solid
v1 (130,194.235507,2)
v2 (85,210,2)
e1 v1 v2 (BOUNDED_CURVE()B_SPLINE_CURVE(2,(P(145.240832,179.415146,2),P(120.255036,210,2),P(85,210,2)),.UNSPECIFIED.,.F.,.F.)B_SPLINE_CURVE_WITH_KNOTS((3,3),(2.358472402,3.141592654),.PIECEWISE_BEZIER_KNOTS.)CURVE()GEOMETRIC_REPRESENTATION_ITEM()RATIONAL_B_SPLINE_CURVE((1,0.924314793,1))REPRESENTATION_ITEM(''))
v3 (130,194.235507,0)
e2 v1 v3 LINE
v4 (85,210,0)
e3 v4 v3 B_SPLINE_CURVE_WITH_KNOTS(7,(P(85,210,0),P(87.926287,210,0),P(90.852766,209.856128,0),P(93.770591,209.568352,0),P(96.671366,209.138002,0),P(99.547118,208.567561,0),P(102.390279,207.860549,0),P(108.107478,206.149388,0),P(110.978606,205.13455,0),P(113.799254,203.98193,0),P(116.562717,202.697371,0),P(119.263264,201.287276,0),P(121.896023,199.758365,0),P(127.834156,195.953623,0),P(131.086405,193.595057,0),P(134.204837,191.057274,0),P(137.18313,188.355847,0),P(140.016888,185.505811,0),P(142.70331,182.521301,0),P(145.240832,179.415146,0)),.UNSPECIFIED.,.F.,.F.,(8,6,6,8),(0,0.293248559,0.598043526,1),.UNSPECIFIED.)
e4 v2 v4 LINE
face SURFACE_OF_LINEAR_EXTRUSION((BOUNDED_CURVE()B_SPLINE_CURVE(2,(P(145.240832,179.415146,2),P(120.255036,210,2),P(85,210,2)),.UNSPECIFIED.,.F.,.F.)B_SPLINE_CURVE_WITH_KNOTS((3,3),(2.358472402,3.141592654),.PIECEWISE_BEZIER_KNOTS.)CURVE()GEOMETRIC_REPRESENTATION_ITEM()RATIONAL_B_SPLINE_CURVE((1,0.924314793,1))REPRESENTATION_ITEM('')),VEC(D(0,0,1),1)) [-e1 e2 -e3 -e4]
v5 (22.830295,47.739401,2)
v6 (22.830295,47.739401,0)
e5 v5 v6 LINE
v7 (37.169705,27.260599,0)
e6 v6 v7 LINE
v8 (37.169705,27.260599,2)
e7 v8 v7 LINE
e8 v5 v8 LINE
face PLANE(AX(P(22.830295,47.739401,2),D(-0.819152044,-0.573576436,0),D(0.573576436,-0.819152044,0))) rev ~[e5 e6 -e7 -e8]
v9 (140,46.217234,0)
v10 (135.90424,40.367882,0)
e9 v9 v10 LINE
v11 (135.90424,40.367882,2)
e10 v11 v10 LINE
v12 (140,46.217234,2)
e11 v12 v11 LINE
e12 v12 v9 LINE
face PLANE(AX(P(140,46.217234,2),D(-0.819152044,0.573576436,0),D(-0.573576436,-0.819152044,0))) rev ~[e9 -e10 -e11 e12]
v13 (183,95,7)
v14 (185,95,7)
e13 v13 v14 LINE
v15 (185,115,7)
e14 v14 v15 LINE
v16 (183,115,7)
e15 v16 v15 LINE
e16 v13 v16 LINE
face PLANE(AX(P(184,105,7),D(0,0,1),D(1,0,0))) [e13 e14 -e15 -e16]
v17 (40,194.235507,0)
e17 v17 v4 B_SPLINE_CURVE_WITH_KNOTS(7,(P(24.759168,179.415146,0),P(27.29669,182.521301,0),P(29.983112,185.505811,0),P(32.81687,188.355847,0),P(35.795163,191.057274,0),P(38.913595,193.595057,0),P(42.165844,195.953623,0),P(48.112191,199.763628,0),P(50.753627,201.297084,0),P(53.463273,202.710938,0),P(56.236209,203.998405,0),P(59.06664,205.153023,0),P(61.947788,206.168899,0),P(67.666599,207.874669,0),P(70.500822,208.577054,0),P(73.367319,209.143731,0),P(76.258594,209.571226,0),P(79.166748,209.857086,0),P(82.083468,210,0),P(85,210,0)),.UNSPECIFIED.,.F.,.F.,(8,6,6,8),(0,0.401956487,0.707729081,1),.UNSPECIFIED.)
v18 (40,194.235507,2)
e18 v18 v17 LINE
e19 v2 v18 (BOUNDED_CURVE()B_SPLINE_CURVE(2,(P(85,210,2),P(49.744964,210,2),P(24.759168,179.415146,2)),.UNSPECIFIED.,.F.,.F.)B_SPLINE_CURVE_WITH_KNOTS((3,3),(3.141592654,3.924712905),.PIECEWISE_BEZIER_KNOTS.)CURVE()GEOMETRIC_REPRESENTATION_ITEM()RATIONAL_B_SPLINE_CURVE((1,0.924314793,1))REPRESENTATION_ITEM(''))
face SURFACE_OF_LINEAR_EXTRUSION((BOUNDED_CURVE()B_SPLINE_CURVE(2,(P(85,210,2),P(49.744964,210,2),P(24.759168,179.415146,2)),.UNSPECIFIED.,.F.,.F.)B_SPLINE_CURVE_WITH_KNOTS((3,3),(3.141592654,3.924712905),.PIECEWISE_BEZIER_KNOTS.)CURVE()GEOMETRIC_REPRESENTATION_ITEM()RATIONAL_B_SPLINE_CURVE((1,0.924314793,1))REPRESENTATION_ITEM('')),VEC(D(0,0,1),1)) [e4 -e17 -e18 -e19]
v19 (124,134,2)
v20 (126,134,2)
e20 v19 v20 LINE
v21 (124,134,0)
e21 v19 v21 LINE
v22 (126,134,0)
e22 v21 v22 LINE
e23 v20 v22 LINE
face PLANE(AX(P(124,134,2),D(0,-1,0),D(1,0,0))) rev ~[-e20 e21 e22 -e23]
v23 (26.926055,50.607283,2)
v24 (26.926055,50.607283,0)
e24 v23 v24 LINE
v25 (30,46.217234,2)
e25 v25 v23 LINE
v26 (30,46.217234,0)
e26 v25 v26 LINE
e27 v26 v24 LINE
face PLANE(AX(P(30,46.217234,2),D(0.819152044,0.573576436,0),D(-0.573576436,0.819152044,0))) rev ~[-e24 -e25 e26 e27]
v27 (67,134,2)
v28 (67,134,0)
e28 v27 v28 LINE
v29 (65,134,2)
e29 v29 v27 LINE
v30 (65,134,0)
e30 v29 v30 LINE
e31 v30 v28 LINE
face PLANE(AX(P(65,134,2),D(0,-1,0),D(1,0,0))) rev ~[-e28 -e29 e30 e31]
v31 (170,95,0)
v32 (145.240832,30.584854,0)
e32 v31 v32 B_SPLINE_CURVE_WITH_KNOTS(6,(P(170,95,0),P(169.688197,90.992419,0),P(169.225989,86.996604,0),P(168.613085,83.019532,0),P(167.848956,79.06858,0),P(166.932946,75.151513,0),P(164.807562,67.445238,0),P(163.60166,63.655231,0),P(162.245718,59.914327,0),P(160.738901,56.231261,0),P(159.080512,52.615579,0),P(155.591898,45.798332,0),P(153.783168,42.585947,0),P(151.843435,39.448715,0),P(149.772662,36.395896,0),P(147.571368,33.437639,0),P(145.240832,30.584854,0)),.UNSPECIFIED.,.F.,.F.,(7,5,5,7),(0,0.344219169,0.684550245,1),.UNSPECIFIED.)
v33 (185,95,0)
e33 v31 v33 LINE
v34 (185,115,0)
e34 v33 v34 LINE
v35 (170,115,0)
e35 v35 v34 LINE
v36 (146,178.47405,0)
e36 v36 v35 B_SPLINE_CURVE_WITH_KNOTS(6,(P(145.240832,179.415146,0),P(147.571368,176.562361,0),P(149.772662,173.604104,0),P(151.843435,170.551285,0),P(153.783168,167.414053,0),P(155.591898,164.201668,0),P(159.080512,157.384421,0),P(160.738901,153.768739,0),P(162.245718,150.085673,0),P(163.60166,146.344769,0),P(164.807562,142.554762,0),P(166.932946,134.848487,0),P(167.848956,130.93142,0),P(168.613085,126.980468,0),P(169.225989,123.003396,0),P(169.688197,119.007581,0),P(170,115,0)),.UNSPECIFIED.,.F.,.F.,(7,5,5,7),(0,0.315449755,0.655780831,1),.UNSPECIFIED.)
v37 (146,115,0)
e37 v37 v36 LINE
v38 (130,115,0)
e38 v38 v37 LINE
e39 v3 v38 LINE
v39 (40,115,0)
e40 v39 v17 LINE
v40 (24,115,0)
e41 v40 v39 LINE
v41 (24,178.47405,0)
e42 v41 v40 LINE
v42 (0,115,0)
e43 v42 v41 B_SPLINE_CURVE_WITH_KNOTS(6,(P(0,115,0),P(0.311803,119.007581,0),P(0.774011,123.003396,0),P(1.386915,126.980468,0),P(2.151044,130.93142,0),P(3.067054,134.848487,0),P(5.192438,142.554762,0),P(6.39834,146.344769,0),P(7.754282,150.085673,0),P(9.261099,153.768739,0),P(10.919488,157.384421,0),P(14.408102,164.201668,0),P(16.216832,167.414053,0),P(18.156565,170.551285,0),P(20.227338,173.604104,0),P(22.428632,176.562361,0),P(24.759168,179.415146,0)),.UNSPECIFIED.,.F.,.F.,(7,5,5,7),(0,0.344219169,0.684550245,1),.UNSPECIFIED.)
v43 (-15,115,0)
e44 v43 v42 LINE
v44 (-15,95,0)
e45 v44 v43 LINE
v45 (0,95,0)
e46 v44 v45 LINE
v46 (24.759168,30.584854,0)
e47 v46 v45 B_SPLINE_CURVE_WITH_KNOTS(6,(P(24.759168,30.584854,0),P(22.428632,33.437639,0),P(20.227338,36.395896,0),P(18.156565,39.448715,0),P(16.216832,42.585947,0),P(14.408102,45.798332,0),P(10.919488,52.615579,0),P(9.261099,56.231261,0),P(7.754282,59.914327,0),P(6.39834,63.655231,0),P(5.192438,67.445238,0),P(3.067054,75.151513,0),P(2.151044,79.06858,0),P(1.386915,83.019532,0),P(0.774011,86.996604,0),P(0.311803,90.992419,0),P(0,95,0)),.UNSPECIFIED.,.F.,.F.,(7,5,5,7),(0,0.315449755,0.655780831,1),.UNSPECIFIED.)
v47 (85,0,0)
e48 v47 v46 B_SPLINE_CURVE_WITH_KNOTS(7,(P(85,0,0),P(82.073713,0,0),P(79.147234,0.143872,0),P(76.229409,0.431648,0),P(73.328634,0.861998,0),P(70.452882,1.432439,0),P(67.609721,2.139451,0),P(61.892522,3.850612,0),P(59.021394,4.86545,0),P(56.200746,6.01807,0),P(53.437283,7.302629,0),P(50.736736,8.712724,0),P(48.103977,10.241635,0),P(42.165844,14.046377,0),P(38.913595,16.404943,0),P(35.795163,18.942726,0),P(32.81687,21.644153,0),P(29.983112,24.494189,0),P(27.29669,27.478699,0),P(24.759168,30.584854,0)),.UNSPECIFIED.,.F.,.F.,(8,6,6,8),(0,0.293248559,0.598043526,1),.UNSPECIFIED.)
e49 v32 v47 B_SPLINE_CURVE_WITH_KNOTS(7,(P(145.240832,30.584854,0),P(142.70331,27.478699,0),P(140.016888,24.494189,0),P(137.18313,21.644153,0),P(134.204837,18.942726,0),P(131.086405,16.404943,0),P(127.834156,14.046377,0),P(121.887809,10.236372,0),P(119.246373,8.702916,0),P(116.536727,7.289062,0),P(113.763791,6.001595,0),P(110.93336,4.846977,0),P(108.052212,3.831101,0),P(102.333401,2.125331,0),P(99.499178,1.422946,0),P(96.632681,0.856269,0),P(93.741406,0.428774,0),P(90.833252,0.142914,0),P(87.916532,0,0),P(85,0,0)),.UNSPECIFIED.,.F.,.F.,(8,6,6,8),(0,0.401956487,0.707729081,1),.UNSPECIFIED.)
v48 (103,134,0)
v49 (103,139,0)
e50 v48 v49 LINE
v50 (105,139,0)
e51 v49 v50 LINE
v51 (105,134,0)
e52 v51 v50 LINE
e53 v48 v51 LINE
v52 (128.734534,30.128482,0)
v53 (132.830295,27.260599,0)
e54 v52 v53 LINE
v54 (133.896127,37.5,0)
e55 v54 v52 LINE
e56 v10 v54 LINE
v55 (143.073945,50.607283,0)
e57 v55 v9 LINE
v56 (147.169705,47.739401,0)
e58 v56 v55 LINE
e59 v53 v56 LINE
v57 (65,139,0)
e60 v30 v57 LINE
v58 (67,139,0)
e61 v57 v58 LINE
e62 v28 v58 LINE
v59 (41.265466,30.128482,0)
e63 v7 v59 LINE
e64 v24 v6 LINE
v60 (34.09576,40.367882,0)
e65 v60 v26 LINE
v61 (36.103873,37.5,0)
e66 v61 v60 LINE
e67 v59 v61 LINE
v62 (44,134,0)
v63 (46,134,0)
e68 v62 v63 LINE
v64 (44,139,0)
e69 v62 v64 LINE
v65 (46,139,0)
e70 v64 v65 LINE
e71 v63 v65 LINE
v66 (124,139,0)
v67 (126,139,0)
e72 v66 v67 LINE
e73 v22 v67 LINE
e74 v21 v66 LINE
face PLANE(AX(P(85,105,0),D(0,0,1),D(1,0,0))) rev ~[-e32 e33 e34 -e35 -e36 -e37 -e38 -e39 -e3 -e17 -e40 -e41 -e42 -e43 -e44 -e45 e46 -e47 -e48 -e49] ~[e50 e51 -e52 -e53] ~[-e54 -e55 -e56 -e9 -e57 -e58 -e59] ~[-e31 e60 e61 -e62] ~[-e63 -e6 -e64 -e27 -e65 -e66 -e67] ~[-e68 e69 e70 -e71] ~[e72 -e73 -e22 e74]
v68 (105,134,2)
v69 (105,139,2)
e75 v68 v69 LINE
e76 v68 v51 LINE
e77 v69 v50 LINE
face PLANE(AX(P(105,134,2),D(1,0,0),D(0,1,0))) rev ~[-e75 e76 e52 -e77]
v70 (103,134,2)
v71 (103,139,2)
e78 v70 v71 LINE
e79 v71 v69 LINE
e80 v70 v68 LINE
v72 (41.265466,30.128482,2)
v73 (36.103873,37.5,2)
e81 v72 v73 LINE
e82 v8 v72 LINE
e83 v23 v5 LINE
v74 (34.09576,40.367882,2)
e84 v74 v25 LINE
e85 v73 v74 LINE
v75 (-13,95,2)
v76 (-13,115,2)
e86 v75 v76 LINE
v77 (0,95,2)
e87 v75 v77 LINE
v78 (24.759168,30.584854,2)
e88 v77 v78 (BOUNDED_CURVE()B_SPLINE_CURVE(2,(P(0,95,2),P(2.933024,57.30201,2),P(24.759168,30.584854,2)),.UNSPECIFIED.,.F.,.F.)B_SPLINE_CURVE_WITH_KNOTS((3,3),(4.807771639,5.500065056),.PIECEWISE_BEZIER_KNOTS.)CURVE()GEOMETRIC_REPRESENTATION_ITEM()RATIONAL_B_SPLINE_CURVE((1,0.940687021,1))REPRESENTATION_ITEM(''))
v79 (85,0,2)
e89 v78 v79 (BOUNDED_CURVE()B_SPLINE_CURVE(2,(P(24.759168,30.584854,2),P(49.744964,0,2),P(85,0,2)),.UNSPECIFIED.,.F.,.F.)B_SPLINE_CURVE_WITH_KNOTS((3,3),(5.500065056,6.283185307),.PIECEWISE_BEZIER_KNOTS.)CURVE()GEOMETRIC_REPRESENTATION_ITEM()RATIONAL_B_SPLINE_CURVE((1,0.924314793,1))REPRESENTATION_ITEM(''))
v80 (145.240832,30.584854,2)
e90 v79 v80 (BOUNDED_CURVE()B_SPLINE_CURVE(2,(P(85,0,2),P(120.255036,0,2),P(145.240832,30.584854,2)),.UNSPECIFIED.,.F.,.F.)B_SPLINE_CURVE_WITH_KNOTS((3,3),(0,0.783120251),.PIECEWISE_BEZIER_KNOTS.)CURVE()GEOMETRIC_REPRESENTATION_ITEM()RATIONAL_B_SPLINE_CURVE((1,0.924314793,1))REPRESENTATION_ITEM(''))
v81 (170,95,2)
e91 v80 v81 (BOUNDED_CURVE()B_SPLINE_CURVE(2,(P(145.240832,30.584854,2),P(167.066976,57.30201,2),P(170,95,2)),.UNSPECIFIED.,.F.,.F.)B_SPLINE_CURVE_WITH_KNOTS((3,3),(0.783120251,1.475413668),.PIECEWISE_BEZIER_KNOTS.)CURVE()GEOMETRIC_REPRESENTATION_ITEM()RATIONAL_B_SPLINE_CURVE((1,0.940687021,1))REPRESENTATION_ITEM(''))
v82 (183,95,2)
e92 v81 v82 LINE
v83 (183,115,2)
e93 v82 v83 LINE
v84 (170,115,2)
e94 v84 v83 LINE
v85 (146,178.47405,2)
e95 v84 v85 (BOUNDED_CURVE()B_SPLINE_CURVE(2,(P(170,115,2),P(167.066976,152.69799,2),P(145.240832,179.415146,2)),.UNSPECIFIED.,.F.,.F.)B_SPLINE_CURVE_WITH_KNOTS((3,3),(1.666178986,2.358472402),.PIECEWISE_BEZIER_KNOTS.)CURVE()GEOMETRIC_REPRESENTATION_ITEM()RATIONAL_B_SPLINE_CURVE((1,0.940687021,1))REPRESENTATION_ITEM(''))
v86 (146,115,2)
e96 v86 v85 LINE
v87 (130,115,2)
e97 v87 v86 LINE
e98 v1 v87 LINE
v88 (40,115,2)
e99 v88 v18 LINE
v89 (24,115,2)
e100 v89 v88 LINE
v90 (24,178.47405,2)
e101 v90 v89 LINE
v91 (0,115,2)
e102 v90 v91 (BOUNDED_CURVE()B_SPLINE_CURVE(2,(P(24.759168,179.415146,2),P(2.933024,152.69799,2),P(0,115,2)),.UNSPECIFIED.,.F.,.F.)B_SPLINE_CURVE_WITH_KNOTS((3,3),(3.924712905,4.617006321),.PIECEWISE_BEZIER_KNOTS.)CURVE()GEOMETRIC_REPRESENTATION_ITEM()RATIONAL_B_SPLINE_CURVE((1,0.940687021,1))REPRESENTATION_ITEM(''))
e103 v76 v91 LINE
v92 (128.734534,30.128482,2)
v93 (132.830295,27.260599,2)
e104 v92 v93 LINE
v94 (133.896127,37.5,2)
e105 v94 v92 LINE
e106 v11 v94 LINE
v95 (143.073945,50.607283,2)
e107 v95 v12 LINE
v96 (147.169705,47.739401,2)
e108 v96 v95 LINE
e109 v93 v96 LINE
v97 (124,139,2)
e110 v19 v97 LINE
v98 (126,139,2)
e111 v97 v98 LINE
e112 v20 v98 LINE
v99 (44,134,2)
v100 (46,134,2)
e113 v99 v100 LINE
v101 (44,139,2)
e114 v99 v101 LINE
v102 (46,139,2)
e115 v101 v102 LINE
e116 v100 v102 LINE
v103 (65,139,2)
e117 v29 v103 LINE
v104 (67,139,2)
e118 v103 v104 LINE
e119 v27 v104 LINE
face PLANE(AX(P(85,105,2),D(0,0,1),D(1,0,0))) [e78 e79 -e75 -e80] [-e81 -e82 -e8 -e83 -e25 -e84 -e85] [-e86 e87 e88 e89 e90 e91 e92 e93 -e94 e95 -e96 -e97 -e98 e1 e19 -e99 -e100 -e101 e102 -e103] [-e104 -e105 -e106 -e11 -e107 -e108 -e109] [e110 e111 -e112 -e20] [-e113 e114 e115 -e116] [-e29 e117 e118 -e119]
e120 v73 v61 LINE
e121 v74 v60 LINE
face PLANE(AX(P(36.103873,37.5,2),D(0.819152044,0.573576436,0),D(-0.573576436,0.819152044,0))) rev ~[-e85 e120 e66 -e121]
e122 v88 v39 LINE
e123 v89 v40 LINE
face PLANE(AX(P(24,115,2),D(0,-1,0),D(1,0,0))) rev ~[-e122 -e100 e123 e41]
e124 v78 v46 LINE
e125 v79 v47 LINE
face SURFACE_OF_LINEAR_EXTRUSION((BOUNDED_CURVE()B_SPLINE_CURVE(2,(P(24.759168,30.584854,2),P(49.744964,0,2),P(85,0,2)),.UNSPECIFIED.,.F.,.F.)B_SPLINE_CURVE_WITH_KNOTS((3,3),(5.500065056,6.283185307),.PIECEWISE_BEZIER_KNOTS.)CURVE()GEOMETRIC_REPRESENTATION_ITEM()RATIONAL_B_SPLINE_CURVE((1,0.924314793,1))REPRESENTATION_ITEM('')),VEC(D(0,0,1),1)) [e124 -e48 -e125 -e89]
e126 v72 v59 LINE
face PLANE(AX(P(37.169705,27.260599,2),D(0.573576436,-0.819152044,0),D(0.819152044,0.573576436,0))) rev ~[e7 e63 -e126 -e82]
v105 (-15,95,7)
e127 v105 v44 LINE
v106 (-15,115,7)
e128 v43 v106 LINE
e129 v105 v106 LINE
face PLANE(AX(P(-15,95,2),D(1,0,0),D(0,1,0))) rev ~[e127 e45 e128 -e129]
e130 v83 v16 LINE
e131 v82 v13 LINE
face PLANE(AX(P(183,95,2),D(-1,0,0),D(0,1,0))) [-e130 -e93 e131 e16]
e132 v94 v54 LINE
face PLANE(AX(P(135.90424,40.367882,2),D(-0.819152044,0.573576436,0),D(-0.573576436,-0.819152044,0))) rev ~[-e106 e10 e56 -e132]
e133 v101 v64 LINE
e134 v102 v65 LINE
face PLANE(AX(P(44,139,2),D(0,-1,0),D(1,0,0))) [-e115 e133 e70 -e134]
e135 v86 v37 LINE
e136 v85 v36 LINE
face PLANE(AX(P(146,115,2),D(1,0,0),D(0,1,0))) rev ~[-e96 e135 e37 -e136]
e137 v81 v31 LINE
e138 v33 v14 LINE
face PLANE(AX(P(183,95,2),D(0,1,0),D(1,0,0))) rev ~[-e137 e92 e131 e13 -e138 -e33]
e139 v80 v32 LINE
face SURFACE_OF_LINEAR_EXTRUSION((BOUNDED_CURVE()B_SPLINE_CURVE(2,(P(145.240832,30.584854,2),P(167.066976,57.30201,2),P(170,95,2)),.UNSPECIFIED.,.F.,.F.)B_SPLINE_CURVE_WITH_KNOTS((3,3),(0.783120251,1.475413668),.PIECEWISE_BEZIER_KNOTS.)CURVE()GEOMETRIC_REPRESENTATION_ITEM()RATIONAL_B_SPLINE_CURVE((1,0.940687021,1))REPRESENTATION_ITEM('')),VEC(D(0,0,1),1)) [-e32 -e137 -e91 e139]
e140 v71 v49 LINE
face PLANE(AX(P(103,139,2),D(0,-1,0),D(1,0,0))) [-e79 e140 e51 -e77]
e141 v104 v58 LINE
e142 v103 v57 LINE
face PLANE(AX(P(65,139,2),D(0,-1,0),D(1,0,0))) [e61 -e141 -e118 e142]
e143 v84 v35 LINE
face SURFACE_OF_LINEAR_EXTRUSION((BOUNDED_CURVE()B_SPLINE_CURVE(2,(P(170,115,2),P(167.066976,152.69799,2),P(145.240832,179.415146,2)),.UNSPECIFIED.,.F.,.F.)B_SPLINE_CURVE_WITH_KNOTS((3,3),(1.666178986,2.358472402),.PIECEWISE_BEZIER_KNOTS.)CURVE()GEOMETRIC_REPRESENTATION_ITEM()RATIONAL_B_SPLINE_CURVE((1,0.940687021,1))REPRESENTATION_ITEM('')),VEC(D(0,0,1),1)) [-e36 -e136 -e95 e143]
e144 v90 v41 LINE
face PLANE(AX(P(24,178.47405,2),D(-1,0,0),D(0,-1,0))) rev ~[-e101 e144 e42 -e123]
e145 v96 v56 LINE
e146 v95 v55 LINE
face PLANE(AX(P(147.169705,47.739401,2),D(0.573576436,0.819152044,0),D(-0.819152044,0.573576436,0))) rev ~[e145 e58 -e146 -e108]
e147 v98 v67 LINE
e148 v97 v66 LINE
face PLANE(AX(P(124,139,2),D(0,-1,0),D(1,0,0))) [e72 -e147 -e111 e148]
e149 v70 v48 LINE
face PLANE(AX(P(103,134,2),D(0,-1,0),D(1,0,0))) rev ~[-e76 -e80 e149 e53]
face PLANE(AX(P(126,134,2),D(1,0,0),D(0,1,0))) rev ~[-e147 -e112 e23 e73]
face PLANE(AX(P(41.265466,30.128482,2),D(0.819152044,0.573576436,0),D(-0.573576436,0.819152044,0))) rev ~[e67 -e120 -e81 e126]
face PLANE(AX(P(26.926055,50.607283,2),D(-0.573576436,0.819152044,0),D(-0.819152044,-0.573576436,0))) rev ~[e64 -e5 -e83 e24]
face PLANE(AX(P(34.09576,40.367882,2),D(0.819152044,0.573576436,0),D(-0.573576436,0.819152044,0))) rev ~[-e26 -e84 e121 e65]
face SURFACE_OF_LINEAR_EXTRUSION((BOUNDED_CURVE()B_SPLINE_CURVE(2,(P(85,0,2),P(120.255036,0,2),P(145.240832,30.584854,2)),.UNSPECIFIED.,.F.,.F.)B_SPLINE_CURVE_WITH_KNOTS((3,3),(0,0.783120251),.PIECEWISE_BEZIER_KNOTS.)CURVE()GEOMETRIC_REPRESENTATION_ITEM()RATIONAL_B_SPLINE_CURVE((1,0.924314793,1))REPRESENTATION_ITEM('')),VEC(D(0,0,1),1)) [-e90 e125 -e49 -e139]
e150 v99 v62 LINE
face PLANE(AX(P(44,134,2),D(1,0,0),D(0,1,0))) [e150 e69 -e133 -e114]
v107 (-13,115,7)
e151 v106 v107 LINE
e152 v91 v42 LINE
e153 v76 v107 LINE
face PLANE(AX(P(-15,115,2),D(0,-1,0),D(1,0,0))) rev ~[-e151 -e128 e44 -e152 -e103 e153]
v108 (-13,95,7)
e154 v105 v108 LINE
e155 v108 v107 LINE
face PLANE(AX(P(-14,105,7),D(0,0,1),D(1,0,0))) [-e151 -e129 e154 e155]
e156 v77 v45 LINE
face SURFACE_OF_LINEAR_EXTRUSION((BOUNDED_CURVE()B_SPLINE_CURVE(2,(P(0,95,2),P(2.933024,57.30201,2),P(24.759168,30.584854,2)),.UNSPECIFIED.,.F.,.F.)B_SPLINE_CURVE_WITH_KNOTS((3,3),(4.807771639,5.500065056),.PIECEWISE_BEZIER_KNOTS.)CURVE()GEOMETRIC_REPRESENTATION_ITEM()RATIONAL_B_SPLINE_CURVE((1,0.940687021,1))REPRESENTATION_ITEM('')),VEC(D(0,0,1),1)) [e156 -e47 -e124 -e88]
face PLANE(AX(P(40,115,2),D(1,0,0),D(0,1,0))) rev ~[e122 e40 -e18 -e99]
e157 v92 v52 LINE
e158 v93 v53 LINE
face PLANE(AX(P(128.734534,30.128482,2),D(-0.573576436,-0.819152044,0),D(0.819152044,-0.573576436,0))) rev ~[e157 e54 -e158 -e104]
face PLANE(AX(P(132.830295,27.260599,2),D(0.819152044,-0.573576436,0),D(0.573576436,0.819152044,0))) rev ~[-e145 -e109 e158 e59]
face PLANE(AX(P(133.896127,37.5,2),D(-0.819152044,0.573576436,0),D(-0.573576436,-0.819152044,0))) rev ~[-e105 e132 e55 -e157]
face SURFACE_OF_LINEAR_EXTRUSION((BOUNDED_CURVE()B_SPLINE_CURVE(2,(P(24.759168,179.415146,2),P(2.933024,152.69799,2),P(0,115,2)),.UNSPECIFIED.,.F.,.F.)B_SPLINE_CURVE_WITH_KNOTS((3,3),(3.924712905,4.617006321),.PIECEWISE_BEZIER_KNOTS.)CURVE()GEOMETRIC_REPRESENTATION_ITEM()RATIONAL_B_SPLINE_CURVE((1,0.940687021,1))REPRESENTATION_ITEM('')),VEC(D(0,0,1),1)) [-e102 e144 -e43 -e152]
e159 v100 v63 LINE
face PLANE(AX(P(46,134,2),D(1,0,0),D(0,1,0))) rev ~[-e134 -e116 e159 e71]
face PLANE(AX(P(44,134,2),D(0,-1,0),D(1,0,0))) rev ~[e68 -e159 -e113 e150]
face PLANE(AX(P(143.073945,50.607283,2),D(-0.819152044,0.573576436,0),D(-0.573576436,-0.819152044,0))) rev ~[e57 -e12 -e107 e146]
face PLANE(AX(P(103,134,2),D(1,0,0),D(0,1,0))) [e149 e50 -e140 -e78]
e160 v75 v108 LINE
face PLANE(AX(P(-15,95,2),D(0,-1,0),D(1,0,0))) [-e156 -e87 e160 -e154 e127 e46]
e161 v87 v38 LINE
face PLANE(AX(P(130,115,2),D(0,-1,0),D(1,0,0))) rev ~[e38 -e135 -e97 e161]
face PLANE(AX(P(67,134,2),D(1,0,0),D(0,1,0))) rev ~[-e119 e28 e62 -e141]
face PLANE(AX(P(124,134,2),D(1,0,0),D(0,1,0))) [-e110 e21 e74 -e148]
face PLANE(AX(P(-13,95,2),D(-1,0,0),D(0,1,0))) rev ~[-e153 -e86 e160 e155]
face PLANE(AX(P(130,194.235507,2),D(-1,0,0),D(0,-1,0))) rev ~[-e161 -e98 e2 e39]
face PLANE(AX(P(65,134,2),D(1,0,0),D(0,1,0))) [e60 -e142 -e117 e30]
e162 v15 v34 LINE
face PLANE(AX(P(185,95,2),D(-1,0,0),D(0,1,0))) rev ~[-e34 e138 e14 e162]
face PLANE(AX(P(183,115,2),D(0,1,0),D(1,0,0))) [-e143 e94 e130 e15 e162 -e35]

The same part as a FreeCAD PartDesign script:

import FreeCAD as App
import Part
import Sketcher
from FreeCAD import Vector
Q = App.Units.Quantity

doc = App.newDocument("Part")
body = doc.addObject("PartDesign::Body", "Body")

# Sketch on XY plane
sketch1 = doc.addObject("Sketcher::SketchObject", "Sketch")
body.addObject(sketch1)
sketch1.AttachmentSupport = (doc.XY_Plane, [""])
sketch1.MapMode = "FlatFace"
sketch1.addGeometry([
    Part.LineSegment(Vector(0, 210, 0), Vector(0, 0, 0)),
    Part.LineSegment(Vector(0, 0, 0), Vector(170, 0, 0)),
    Part.LineSegment(Vector(170, 0, 0), Vector(170, 210, 0)),
    Part.LineSegment(Vector(170, 210, 0), Vector(0, 210, 0)),
], False)
sketch1.addConstraint([
    Sketcher.Constraint("Coincident", 0, 2, 1, 1),
    Sketcher.Constraint("Coincident", 1, 2, 2, 1),
    Sketcher.Constraint("Coincident", 2, 2, 3, 1),
    Sketcher.Constraint("Coincident", 3, 2, 0, 1),
    Sketcher.Constraint("Vertical", 0),
    Sketcher.Constraint("Horizontal", 1),
    Sketcher.Constraint("Vertical", 2),
    Sketcher.Constraint("Horizontal", 3),
    Sketcher.Constraint("Coincident", 0, 2, -1, 1),
    Sketcher.Constraint("DistanceX", 1, 1, 1, 2, 170.0),
    Sketcher.Constraint("DistanceY", 0, 2, 0, 1, 210.0),
])
pad1 = doc.addObject("PartDesign::Pad", "Pad")
body.addObject(pad1)
pad1.Profile = sketch1
pad1.Length = 2

# Sketch on XY plane
sketch2 = doc.addObject("Sketcher::SketchObject", "Sketch001")
body.addObject(sketch2)
sketch2.AttachmentSupport = (doc.XY_Plane, [""])
sketch2.MapMode = "FlatFace"
sketch2.AttachmentOffset = App.Placement(Vector(0, 0, 2), App.Rotation())
sketch2.addGeometry([
    Part.LineSegment(Vector(-15, 115, 0), Vector(-15, 95, 0)),  # 0
    Part.LineSegment(Vector(-15, 95, 0), Vector(0, 95, 0)),  # 1
    Part.LineSegment(Vector(0, 95, 0), Vector(0, 115, 0)),  # 2
    Part.LineSegment(Vector(0, 115, 0), Vector(-15, 115, 0)),  # 3
    Part.LineSegment(Vector(170, 115, 0), Vector(170, 95, 0)),  # 4
    Part.LineSegment(Vector(170, 95, 0), Vector(185, 95, 0)),  # 5
    Part.LineSegment(Vector(185, 95, 0), Vector(185, 115, 0)),  # 6
    Part.LineSegment(Vector(185, 115, 0), Vector(170, 115, 0)),  # 7
], False)
sketch2.addConstraint([
    Sketcher.Constraint("Coincident", 0, 2, 1, 1),
    Sketcher.Constraint("Coincident", 1, 2, 2, 1),
    Sketcher.Constraint("Coincident", 2, 2, 3, 1),
    Sketcher.Constraint("Coincident", 3, 2, 0, 1),
    Sketcher.Constraint("Coincident", 4, 2, 5, 1),
    Sketcher.Constraint("Coincident", 5, 2, 6, 1),
    Sketcher.Constraint("Coincident", 6, 2, 7, 1),
    Sketcher.Constraint("Coincident", 7, 2, 4, 1),
    Sketcher.Constraint("Vertical", 0),
    Sketcher.Constraint("Horizontal", 1),
    Sketcher.Constraint("Vertical", 2),
    Sketcher.Constraint("Horizontal", 3),
    Sketcher.Constraint("Vertical", 4),
    Sketcher.Constraint("Horizontal", 5),
    Sketcher.Constraint("Vertical", 6),
    Sketcher.Constraint("Horizontal", 7),
    Sketcher.Constraint("PointOnObject", 1, 2, -2),
    Sketcher.Constraint("Horizontal", 1, 2, 4, 2),
    Sketcher.Constraint("Horizontal", 3, 2, 6, 2),
    Sketcher.Constraint("Equal", 3, 5),
    Sketcher.Constraint("DistanceX", 1, 1, 1, 2, 15.0),
    Sketcher.Constraint("DistanceY", 0, 2, 0, 1, 20.0),
    Sketcher.Constraint("DistanceY", -1, 1, 0, 2, 95.0),
    Sketcher.Constraint("DistanceX", -1, 1, 4, 2, 170.0),
])
pad2 = doc.addObject("PartDesign::Pad", "Pad001")
body.addObject(pad2)
pad2.Profile = sketch2
pad2.Length = 2
pad2.Reversed = True

# Sketch on XY plane
sketch3 = doc.addObject("Sketcher::SketchObject", "Sketch002")
body.addObject(sketch3)
sketch3.AttachmentSupport = (doc.XY_Plane, [""])
sketch3.MapMode = "FlatFace"
sketch3.AttachmentOffset = App.Placement(Vector(0, 0, 2), App.Rotation())
sketch3.addGeometry([
    Part.LineSegment(Vector(183, 115, 0), Vector(183, 95, 0)),  # 0
    Part.LineSegment(Vector(183, 95, 0), Vector(185, 95, 0)),  # 1
    Part.LineSegment(Vector(185, 95, 0), Vector(185, 115, 0)),  # 2
    Part.LineSegment(Vector(185, 115, 0), Vector(183, 115, 0)),  # 3
    Part.LineSegment(Vector(-15, 115, 0), Vector(-15, 95, 0)),  # 4
    Part.LineSegment(Vector(-15, 95, 0), Vector(-13, 95, 0)),  # 5
    Part.LineSegment(Vector(-13, 95, 0), Vector(-13, 115, 0)),  # 6
    Part.LineSegment(Vector(-13, 115, 0), Vector(-15, 115, 0)),  # 7
], False)
sketch3.addConstraint([
    Sketcher.Constraint("Coincident", 0, 2, 1, 1),
    Sketcher.Constraint("Coincident", 1, 2, 2, 1),
    Sketcher.Constraint("Coincident", 2, 2, 3, 1),
    Sketcher.Constraint("Coincident", 3, 2, 0, 1),
    Sketcher.Constraint("Coincident", 4, 2, 5, 1),
    Sketcher.Constraint("Coincident", 5, 2, 6, 1),
    Sketcher.Constraint("Coincident", 6, 2, 7, 1),
    Sketcher.Constraint("Coincident", 7, 2, 4, 1),
    Sketcher.Constraint("Vertical", 0),
    Sketcher.Constraint("Horizontal", 1),
    Sketcher.Constraint("Vertical", 2),
    Sketcher.Constraint("Horizontal", 3),
    Sketcher.Constraint("Vertical", 4),
    Sketcher.Constraint("Horizontal", 5),
    Sketcher.Constraint("Vertical", 6),
    Sketcher.Constraint("Horizontal", 7),
    Sketcher.Constraint("Horizontal", 1, 2, 4, 2),
    Sketcher.Constraint("Horizontal", 3, 2, 6, 2),
    Sketcher.Constraint("Equal", 3, 5),
    Sketcher.Constraint("DistanceX", 1, 1, 1, 2, 2.0),
    Sketcher.Constraint("DistanceY", 0, 2, 0, 1, 20.0),
    Sketcher.Constraint("DistanceX", -1, 1, 0, 2, 183.0),
    Sketcher.Constraint("DistanceY", -1, 1, 0, 2, 95.0),
    Sketcher.Constraint("DistanceX", 4, 2, -1, 1, 15.0),
])
pad3 = doc.addObject("PartDesign::Pad", "Pad002")
body.addObject(pad3)
pad3.Profile = sketch3
pad3.Length = 5

# Sketch on XY plane
sketch4 = doc.addObject("Sketcher::SketchObject", "Sketch003")
body.addObject(sketch4)
sketch4.AttachmentSupport = (doc.XY_Plane, [""])
sketch4.MapMode = "FlatFace"
sketch4.AttachmentOffset = App.Placement(Vector(0, 0, 2), App.Rotation())
sketch4.addGeometry([
    Part.BSplineCurve([Vector(24.759168, 179.415146, 0), Vector(2.933024, 152.69799, 0), Vector(0, 115, 0)], [3, 3], [3.924712905, 4.617006321], False, 2, [1, 0.940687021, 1], False),  # 0
    Part.BSplineCurve([Vector(85, 210, 0), Vector(49.744964, 210, 0), Vector(24.759168, 179.415146, 0)], [3, 3], [3.141592654, 3.924712905], False, 2, [1, 0.924314793, 1], False),  # 1
    Part.LineSegment(Vector(85, 210, 0), Vector(0, 210, 0)),  # 2
    Part.LineSegment(Vector(0, 210, 0), Vector(0, 115, 0)),  # 3
    Part.BSplineCurve([Vector(145.240832, 179.415146, 0), Vector(120.255036, 210, 0), Vector(85, 210, 0)], [3, 3], [2.358472402, 3.141592654], False, 2, [1, 0.924314793, 1], False),  # 4
    Part.BSplineCurve([Vector(170, 115, 0), Vector(167.066976, 152.69799, 0), Vector(145.240832, 179.415146, 0)], [3, 3], [1.666178986, 2.358472402], False, 2, [1, 0.940687021, 1], False),  # 5
    Part.LineSegment(Vector(170, 115, 0), Vector(170, 210, 0)),  # 6
    Part.LineSegment(Vector(170, 210, 0), Vector(85, 210, 0)),  # 7
    Part.BSplineCurve([Vector(0, 95, 0), Vector(2.933024, 57.30201, 0), Vector(24.759168, 30.584854, 0)], [3, 3], [4.807771639, 5.500065056], False, 2, [1, 0.940687021, 1], False),  # 8
    Part.LineSegment(Vector(0, 95, 0), Vector(0, 0, 0)),  # 9
    Part.LineSegment(Vector(0, 0, 0), Vector(85, 0, 0)),  # 10
    Part.BSplineCurve([Vector(24.759168, 30.584854, 0), Vector(49.744964, 0, 0), Vector(85, 0, 0)], [3, 3], [5.500065056, 6.283185307], False, 2, [1, 0.924314793, 1], False),  # 11
    Part.BSplineCurve([Vector(85, 0, 0), Vector(120.255036, 0, 0), Vector(145.240832, 30.584854, 0)], [3, 3], [0, 0.783120251], False, 2, [1, 0.924314793, 1], False),  # 12
    Part.LineSegment(Vector(85, 0, 0), Vector(170, 0, 0)),  # 13
    Part.LineSegment(Vector(170, 0, 0), Vector(170, 95, 0)),  # 14
    Part.BSplineCurve([Vector(145.240832, 30.584854, 0), Vector(167.066976, 57.30201, 0), Vector(170, 95, 0)], [3, 3], [0.783120251, 1.475413668], False, 2, [1, 0.940687021, 1], False),  # 15
], False)
sketch4.addConstraint([
    Sketcher.Constraint("Block", 0),
    Sketcher.Constraint("Block", 1),
    Sketcher.Constraint("Block", 4),
    Sketcher.Constraint("Block", 5),
    Sketcher.Constraint("Block", 8),
    Sketcher.Constraint("Block", 11),
    Sketcher.Constraint("Block", 12),
    Sketcher.Constraint("Block", 15),
    Sketcher.Constraint("Coincident", 1, 1, 2, 1),
    Sketcher.Constraint("Coincident", 2, 2, 3, 1),
    Sketcher.Constraint("Coincident", 3, 2, 0, 2),
    Sketcher.Constraint("Coincident", 5, 1, 6, 1),
    Sketcher.Constraint("Coincident", 6, 2, 7, 1),
    Sketcher.Constraint("Coincident", 7, 2, 4, 2),
    Sketcher.Constraint("Coincident", 8, 1, 9, 1),
    Sketcher.Constraint("Coincident", 9, 2, 10, 1),
    Sketcher.Constraint("Coincident", 10, 2, 11, 2),
    Sketcher.Constraint("Coincident", 12, 1, 13, 1),
    Sketcher.Constraint("Coincident", 13, 2, 14, 1),
    Sketcher.Constraint("Coincident", 14, 2, 15, 2),
    Sketcher.Constraint("Horizontal", 2),
    Sketcher.Constraint("Vertical", 3),
    Sketcher.Constraint("Vertical", 6),
    Sketcher.Constraint("Horizontal", 7),
    Sketcher.Constraint("Vertical", 9),
    Sketcher.Constraint("Horizontal", 10),
    Sketcher.Constraint("Horizontal", 13),
    Sketcher.Constraint("Vertical", 14),
])
pocket1 = doc.addObject("PartDesign::Pocket", "Pocket")
body.addObject(pocket1)
pocket1.Profile = sketch4
pocket1.Type = "ThroughAll"

# Sketch on XY plane
sketch5 = doc.addObject("Sketcher::SketchObject", "Sketch004")
body.addObject(sketch5)
sketch5.AttachmentSupport = (doc.XY_Plane, [""])
sketch5.MapMode = "FlatFace"
sketch5.AttachmentOffset = App.Placement(Vector(0, 0, 2), App.Rotation())
sketch5.addGeometry([
    Part.LineSegment(Vector(133.896127, 37.5, 0), Vector(128.734534, 30.128482, 0)),  # 0
    Part.LineSegment(Vector(128.734534, 30.128482, 0), Vector(132.830295, 27.260599, 0)),  # 1
    Part.LineSegment(Vector(132.830295, 27.260599, 0), Vector(147.169705, 47.739401, 0)),  # 2
    Part.LineSegment(Vector(147.169705, 47.739401, 0), Vector(143.073945, 50.607283, 0)),  # 3
    Part.LineSegment(Vector(143.073945, 50.607283, 0), Vector(140, 46.217234, 0)),  # 4
    Part.LineSegment(Vector(140, 46.217234, 0), Vector(135.90424, 40.367882, 0)),  # 5
    Part.LineSegment(Vector(135.90424, 40.367882, 0), Vector(133.896127, 37.5, 0)),  # 6
    Part.LineSegment(Vector(37.169705, 27.260599, 0), Vector(41.265466, 30.128482, 0)),  # 7
    Part.LineSegment(Vector(41.265466, 30.128482, 0), Vector(36.103873, 37.5, 0)),  # 8
    Part.LineSegment(Vector(36.103873, 37.5, 0), Vector(34.09576, 40.367882, 0)),  # 9
    Part.LineSegment(Vector(34.09576, 40.367882, 0), Vector(30, 46.217234, 0)),  # 10
    Part.LineSegment(Vector(30, 46.217234, 0), Vector(26.926055, 50.607283, 0)),  # 11
    Part.LineSegment(Vector(26.926055, 50.607283, 0), Vector(22.830295, 47.739401, 0)),  # 12
    Part.LineSegment(Vector(22.830295, 47.739401, 0), Vector(37.169705, 27.260599, 0)),  # 13
], False)
sketch5.addConstraint([
    Sketcher.Constraint("Coincident", 0, 2, 1, 1),
    Sketcher.Constraint("Coincident", 1, 2, 2, 1),
    Sketcher.Constraint("Coincident", 2, 2, 3, 1),
    Sketcher.Constraint("Coincident", 3, 2, 4, 1),
    Sketcher.Constraint("Coincident", 4, 2, 5, 1),
    Sketcher.Constraint("Coincident", 5, 2, 6, 1),
    Sketcher.Constraint("Coincident", 6, 2, 0, 1),
    Sketcher.Constraint("Coincident", 7, 2, 8, 1),
    Sketcher.Constraint("Coincident", 8, 2, 9, 1),
    Sketcher.Constraint("Coincident", 9, 2, 10, 1),
    Sketcher.Constraint("Coincident", 10, 2, 11, 1),
    Sketcher.Constraint("Coincident", 11, 2, 12, 1),
    Sketcher.Constraint("Coincident", 12, 2, 13, 1),
    Sketcher.Constraint("Coincident", 13, 2, 7, 1),
    Sketcher.Constraint("Perpendicular", 0, 1),
    Sketcher.Constraint("Perpendicular", 1, 2),
    Sketcher.Constraint("Perpendicular", 2, 3),
    Sketcher.Constraint("Perpendicular", 3, 4),
    Sketcher.Constraint("Parallel", 4, 5),
    Sketcher.Constraint("Parallel", 5, 6),
    Sketcher.Constraint("Perpendicular", 7, 8),
    Sketcher.Constraint("Parallel", 8, 9),
    Sketcher.Constraint("Parallel", 9, 10),
    Sketcher.Constraint("Parallel", 10, 11),
    Sketcher.Constraint("Perpendicular", 11, 12),
    Sketcher.Constraint("Perpendicular", 12, 13),
    Sketcher.Constraint("Horizontal", 0, 2, 7, 2),
    Sketcher.Constraint("Horizontal", 6, 2, 8, 2),
    Sketcher.Constraint("Horizontal", 5, 2, 9, 2),
    Sketcher.Constraint("Horizontal", 4, 2, 10, 2),
    Sketcher.Constraint("Horizontal", 3, 2, 11, 2),
    Sketcher.Constraint("Horizontal", 2, 2, 12, 2),
    Sketcher.Constraint("Equal", 3, 7),
    Sketcher.Constraint("Angle", 0, Q("-125 deg")),
    Sketcher.Constraint("Distance", 1, 5.0),
    Sketcher.Constraint("Distance", 2, 25.0),
    Sketcher.Constraint("DistanceX", -1, 1, 4, 2, 140.0),
    Sketcher.Constraint("DistanceX", -1, 1, 10, 2, 30.0),
    Sketcher.Constraint("DistanceY", -1, 1, 6, 2, 37.5),
    Sketcher.Constraint("DistanceY", -1, 1, 1, 2, 27.260599),
    Sketcher.Constraint("DistanceY", 5, 2, 3, 2, 10.239401),
    Sketcher.Constraint("Distance", 4, 5.35926),
])
pocket2 = doc.addObject("PartDesign::Pocket", "Pocket001")
body.addObject(pocket2)
pocket2.Profile = sketch5
pocket2.Type = "ThroughAll"

# Sketch on XY plane
sketch6 = doc.addObject("Sketcher::SketchObject", "Sketch005")
body.addObject(sketch6)
sketch6.AttachmentSupport = (doc.XY_Plane, [""])
sketch6.MapMode = "FlatFace"
sketch6.AttachmentOffset = App.Placement(Vector(0, 0, 2), App.Rotation())
sketch6.addGeometry([
    Part.LineSegment(Vector(130, 115, 0), Vector(146, 115, 0)),  # 0
    Part.LineSegment(Vector(146, 115, 0), Vector(146, 178.47405, 0)),  # 1
    Part.BSplineCurve([Vector(135.130265, 190, 0), Vector(137.306371, 188.059361, 0), Vector(139.410434, 186.022284, 0), Vector(141.437065, 183.896501, 0), Vector(143.381738, 181.690844, 0), Vector(145.393463, 179.228311, 0), Vector(145.5457, 179.040782, 0), Vector(145.697538, 178.85256, 0), Vector(145.848972, 178.663649, 0), Vector(146, 178.47405, 0)], [6, 4, 6], [2.983992432, 3.141592654, 3.154531604], False, 5, [0.999407942, 0.999585097, 0.999758957, 0.999907202, 1, 1, 0.999999514, 0.99999856, 0.999997156, 0.999995319], False),  # 2
    Part.BSplineCurve([Vector(130, 194.235507, 0), Vector(131.054046, 193.431763, 0), Vector(132.094686, 192.605659, 0), Vector(133.121311, 191.75785, 0), Vector(134.13335, 190.889043, 0), Vector(135.130265, 190, 0)], [6, 6], [2.911811507, 2.983992432], False, 5, [0.999015128, 0.99908749, 0.9991646, 0.999244976, 0.999326805, 0.999407942], False),  # 3
    Part.LineSegment(Vector(130, 194.235507, 0), Vector(130, 115, 0)),  # 4
    Part.BSplineCurve([Vector(24, 178.47405, 0), Vector(24.151028, 178.663649, 0), Vector(24.302462, 178.85256, 0), Vector(24.4543, 179.040782, 0), Vector(24.606537, 179.228311, 0), Vector(26.618262, 181.690844, 0), Vector(28.562935, 183.896501, 0), Vector(30.589566, 186.022284, 0), Vector(32.693629, 188.059361, 0), Vector(34.869735, 190, 0)], [6, 4, 6], [4.604140079, 4.617006321, 4.773720941], False, 5, [0.999995319, 0.999997156, 0.99999856, 0.999999514, 1, 1, 0.999907202, 0.999758957, 0.999585097, 0.999407942], False),  # 5
    Part.LineSegment(Vector(24, 178.47405, 0), Vector(24, 115, 0)),  # 6
    Part.LineSegment(Vector(24, 115, 0), Vector(40, 115, 0)),  # 7
    Part.LineSegment(Vector(40, 115, 0), Vector(40, 194.235507, 0)),  # 8
    Part.BSplineCurve([Vector(34.869735, 190, 0), Vector(35.86665, 190.889043, 0), Vector(36.878689, 191.75785, 0), Vector(37.905314, 192.605659, 0), Vector(38.945954, 193.431763, 0), Vector(40, 194.235507, 0)], [6, 6], [4.773720941, 4.84549626], False, 5, [0.999407942, 0.999326805, 0.999244976, 0.9991646, 0.99908749, 0.999015128], False),  # 9
], False)
sketch6.addConstraint([
    Sketcher.Constraint("Block", 2),
    Sketcher.Constraint("Block", 3),
    Sketcher.Constraint("Block", 5),
    Sketcher.Constraint("Block", 9),
    Sketcher.Constraint("Coincident", 0, 2, 1, 1),
    Sketcher.Constraint("Coincident", 1, 2, 2, 2),
    Sketcher.Constraint("Coincident", 3, 1, 4, 1),
    Sketcher.Constraint("Coincident", 4, 2, 0, 1),
    Sketcher.Constraint("Coincident", 5, 1, 6, 1),
    Sketcher.Constraint("Coincident", 6, 2, 7, 1),
    Sketcher.Constraint("Coincident", 7, 2, 8, 1),
    Sketcher.Constraint("Coincident", 8, 2, 9, 2),
    Sketcher.Constraint("Horizontal", 0),
    Sketcher.Constraint("Vertical", 1),
    Sketcher.Constraint("Vertical", 4),
    Sketcher.Constraint("Vertical", 6),
    Sketcher.Constraint("Horizontal", 7),
    Sketcher.Constraint("Vertical", 8),
    Sketcher.Constraint("Horizontal", 4, 2, 6, 2),
    Sketcher.Constraint("DistanceY", -1, 1, 0, 2, 115.0),
])
pocket3 = doc.addObject("PartDesign::Pocket", "Pocket002")
body.addObject(pocket3)
pocket3.Profile = sketch6
pocket3.Type = "ThroughAll"

# Sketch on XY plane
sketch7 = doc.addObject("Sketcher::SketchObject", "Sketch006")
body.addObject(sketch7)
sketch7.AttachmentSupport = (doc.XY_Plane, [""])
sketch7.MapMode = "FlatFace"
sketch7.AttachmentOffset = App.Placement(Vector(0, 0, 2), App.Rotation())
sketch7.addGeometry([
    Part.LineSegment(Vector(44, 139, 0), Vector(44, 134, 0)),  # 0
    Part.LineSegment(Vector(44, 134, 0), Vector(46, 134, 0)),  # 1
    Part.LineSegment(Vector(46, 134, 0), Vector(46, 139, 0)),  # 2
    Part.LineSegment(Vector(46, 139, 0), Vector(44, 139, 0)),  # 3
    Part.LineSegment(Vector(65, 139, 0), Vector(65, 134, 0)),  # 4
    Part.LineSegment(Vector(65, 134, 0), Vector(67, 134, 0)),  # 5
    Part.LineSegment(Vector(67, 134, 0), Vector(67, 139, 0)),  # 6
    Part.LineSegment(Vector(67, 139, 0), Vector(65, 139, 0)),  # 7
    Part.LineSegment(Vector(103, 139, 0), Vector(103, 134, 0)),  # 8
    Part.LineSegment(Vector(103, 134, 0), Vector(105, 134, 0)),  # 9
    Part.LineSegment(Vector(105, 134, 0), Vector(105, 139, 0)),  # 10
    Part.LineSegment(Vector(105, 139, 0), Vector(103, 139, 0)),  # 11
    Part.LineSegment(Vector(124, 139, 0), Vector(124, 134, 0)),  # 12
    Part.LineSegment(Vector(124, 134, 0), Vector(126, 134, 0)),  # 13
    Part.LineSegment(Vector(126, 134, 0), Vector(126, 139, 0)),  # 14
    Part.LineSegment(Vector(126, 139, 0), Vector(124, 139, 0)),  # 15
], False)
sketch7.addConstraint([
    Sketcher.Constraint("Coincident", 0, 2, 1, 1),
    Sketcher.Constraint("Coincident", 1, 2, 2, 1),
    Sketcher.Constraint("Coincident", 2, 2, 3, 1),
    Sketcher.Constraint("Coincident", 3, 2, 0, 1),
    Sketcher.Constraint("Coincident", 4, 2, 5, 1),
    Sketcher.Constraint("Coincident", 5, 2, 6, 1),
    Sketcher.Constraint("Coincident", 6, 2, 7, 1),
    Sketcher.Constraint("Coincident", 7, 2, 4, 1),
    Sketcher.Constraint("Coincident", 8, 2, 9, 1),
    Sketcher.Constraint("Coincident", 9, 2, 10, 1),
    Sketcher.Constraint("Coincident", 10, 2, 11, 1),
    Sketcher.Constraint("Coincident", 11, 2, 8, 1),
    Sketcher.Constraint("Coincident", 12, 2, 13, 1),
    Sketcher.Constraint("Coincident", 13, 2, 14, 1),
    Sketcher.Constraint("Coincident", 14, 2, 15, 1),
    Sketcher.Constraint("Coincident", 15, 2, 12, 1),
    Sketcher.Constraint("Vertical", 0),
    Sketcher.Constraint("Horizontal", 1),
    Sketcher.Constraint("Vertical", 2),
    Sketcher.Constraint("Horizontal", 3),
    Sketcher.Constraint("Vertical", 4),
    Sketcher.Constraint("Horizontal", 5),
    Sketcher.Constraint("Vertical", 6),
    Sketcher.Constraint("Horizontal", 7),
    Sketcher.Constraint("Vertical", 8),
    Sketcher.Constraint("Horizontal", 9),
    Sketcher.Constraint("Vertical", 10),
    Sketcher.Constraint("Horizontal", 11),
    Sketcher.Constraint("Vertical", 12),
    Sketcher.Constraint("Horizontal", 13),
    Sketcher.Constraint("Vertical", 14),
    Sketcher.Constraint("Horizontal", 15),
    Sketcher.Constraint("Horizontal", 1, 2, 4, 2),
    Sketcher.Constraint("Horizontal", 3, 2, 6, 2),
    Sketcher.Constraint("Horizontal", 5, 2, 8, 2),
    Sketcher.Constraint("Horizontal", 7, 2, 10, 2),
    Sketcher.Constraint("Horizontal", 9, 2, 12, 2),
    Sketcher.Constraint("Horizontal", 11, 2, 14, 2),
    Sketcher.Constraint("Equal", 3, 5),
    Sketcher.Constraint("Equal", 7, 9),
    Sketcher.Constraint("Equal", 11, 13),
    Sketcher.Constraint("DistanceX", 1, 1, 1, 2, 2.0),
    Sketcher.Constraint("DistanceY", 0, 2, 0, 1, 5.0),
    Sketcher.Constraint("DistanceX", -1, 1, 0, 2, 44.0),
    Sketcher.Constraint("DistanceY", -1, 1, 0, 2, 134.0),
    Sketcher.Constraint("DistanceX", -1, 1, 4, 2, 65.0),
    Sketcher.Constraint("DistanceX", -1, 1, 8, 2, 103.0),
    Sketcher.Constraint("DistanceX", -1, 1, 12, 2, 124.0),
])
pocket4 = doc.addObject("PartDesign::Pocket", "Pocket003")
body.addObject(pocket4)
pocket4.Profile = sketch7
pocket4.Type = "ThroughAll"

doc.recompute()
